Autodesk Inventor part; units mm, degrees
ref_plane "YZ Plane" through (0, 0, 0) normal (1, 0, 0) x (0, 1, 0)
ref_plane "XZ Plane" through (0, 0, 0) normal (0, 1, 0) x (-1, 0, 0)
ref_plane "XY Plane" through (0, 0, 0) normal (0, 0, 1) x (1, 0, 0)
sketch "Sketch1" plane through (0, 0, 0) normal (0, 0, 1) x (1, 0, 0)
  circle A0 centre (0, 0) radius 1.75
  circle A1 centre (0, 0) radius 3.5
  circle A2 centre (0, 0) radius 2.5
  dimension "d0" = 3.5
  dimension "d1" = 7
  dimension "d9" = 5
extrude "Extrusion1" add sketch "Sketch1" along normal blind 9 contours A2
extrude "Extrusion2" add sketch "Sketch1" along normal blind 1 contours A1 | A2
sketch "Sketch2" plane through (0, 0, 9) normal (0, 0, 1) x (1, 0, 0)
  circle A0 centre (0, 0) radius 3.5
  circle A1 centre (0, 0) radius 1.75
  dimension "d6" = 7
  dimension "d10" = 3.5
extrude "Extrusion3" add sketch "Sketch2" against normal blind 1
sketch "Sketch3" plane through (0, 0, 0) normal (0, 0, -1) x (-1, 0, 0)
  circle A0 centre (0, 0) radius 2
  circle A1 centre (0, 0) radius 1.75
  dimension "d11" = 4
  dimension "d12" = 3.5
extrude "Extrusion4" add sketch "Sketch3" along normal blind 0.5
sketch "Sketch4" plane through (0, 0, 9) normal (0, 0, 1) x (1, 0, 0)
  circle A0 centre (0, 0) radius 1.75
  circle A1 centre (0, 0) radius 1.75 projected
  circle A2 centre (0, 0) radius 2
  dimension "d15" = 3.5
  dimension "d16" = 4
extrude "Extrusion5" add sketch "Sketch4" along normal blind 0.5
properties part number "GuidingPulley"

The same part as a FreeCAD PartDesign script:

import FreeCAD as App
import Part
import Sketcher

V = App.Vector

doc = App.newDocument("Part")
body = doc.addObject("PartDesign::Body", "Body")

sketch1 = doc.addObject("Sketcher::SketchObject", "Sketch")
body.addObject(sketch1)
sketch1.AttachmentSupport = (doc.XY_Plane, [""])
sketch1.MapMode = "FlatFace"
sketch1.addGeometry(Part.Circle(V(0, 0, 0), V(0, 0, 1), 2.5), False)
sketch1.addGeometry(Part.Circle(V(0, 0, 0), V(0, 0, 1), 1.8), False)
sketch1.addConstraint(Sketcher.Constraint("Coincident", 0, 3, -1, 1))
sketch1.addConstraint(Sketcher.Constraint("Coincident", 1, 3, -1, 1))
sketch1.addConstraint(Sketcher.Constraint("Diameter", 0, 5.0))
sketch1.addConstraint(Sketcher.Constraint("Diameter", 1, 3.5))
pad1 = doc.addObject("PartDesign::Pad", "Pad")
body.addObject(pad1)
pad1.Profile = sketch1
pad1.Length = 9

sketch2 = doc.addObject("Sketcher::SketchObject", "Sketch001")
body.addObject(sketch2)
sketch2.AttachmentSupport = (doc.XY_Plane, [""])
sketch2.MapMode = "FlatFace"
sketch2.addGeometry(Part.Circle(V(0, 0, 0), V(0, 0, 1), 3.5), False)
sketch2.addGeometry(Part.Circle(V(0, 0, 0), V(0, 0, 1), 1.8), False)
sketch2.addConstraint(Sketcher.Constraint("Coincident", 0, 3, -1, 1))
sketch2.addConstraint(Sketcher.Constraint("Coincident", 1, 3, -1, 1))
sketch2.addConstraint(Sketcher.Constraint("Diameter", 0, 7.0))
sketch2.addConstraint(Sketcher.Constraint("Diameter", 1, 3.5))
pad2 = doc.addObject("PartDesign::Pad", "Pad001")
body.addObject(pad2)
pad2.Profile = sketch2
pad2.Length = 1

sketch3 = doc.addObject("Sketcher::SketchObject", "Sketch002")
body.addObject(sketch3)
sketch3.AttachmentSupport = (doc.XY_Plane, [""])
sketch3.MapMode = "FlatFace"
sketch3.AttachmentOffset = App.Placement(V(0, 0, 9), App.Rotation())
sketch3.addGeometry(Part.Circle(V(0, 0, 0), V(0, 0, 1), 3.5), False)
sketch3.addGeometry(Part.Circle(V(0, 0, 0), V(0, 0, 1), 1.8), False)
sketch3.addConstraint(Sketcher.Constraint("Coincident", 0, 3, -1, 1))
sketch3.addConstraint(Sketcher.Constraint("Coincident", 1, 3, -1, 1))
sketch3.addConstraint(Sketcher.Constraint("Diameter", 0, 7.0))
sketch3.addConstraint(Sketcher.Constraint("Diameter", 1, 3.5))
pad3 = doc.addObject("PartDesign::Pad", "Pad002")
body.addObject(pad3)
pad3.Profile = sketch3
pad3.Length = 1
pad3.Reversed = True

sketch4 = doc.addObject("Sketcher::SketchObject", "Sketch003")
body.addObject(sketch4)
sketch4.AttachmentSupport = (doc.XY_Plane, [""])
sketch4.MapMode = "FlatFace"
sketch4.addGeometry(Part.Circle(V(0, 0, 0), V(0, 0, 1), 2), False)
sketch4.addGeometry(Part.Circle(V(0, 0, 0), V(0, 0, 1), 1.8), False)
sketch4.addConstraint(Sketcher.Constraint("Coincident", 0, 3, -1, 1))
sketch4.addConstraint(Sketcher.Constraint("Coincident", 1, 3, -1, 1))
sketch4.addConstraint(Sketcher.Constraint("Diameter", 0, 4.0))
sketch4.addConstraint(Sketcher.Constraint("Diameter", 1, 3.5))
pad4 = doc.addObject("PartDesign::Pad", "Pad003")
body.addObject(pad4)
pad4.Profile = sketch4
pad4.Length = 0.5
pad4.Reversed = True

sketch5 = doc.addObject("Sketcher::SketchObject", "Sketch004")
body.addObject(sketch5)
sketch5.AttachmentSupport = (doc.XY_Plane, [""])
sketch5.MapMode = "FlatFace"
sketch5.AttachmentOffset = App.Placement(V(0, 0, 9), App.Rotation())
sketch5.addGeometry(Part.Circle(V(0, 0, 0), V(0, 0, 1), 2), False)
sketch5.addGeometry(Part.Circle(V(0, 0, 0), V(0, 0, 1), 1.8), False)
sketch5.addConstraint(Sketcher.Constraint("Coincident", 0, 3, -1, 1))
sketch5.addConstraint(Sketcher.Constraint("Coincident", 1, 3, -1, 1))
sketch5.addConstraint(Sketcher.Constraint("Diameter", 0, 4.0))
sketch5.addConstraint(Sketcher.Constraint("Diameter", 1, 3.5))
pad5 = doc.addObject("PartDesign::Pad", "Pad004")
body.addObject(pad5)
pad5.Profile = sketch5
pad5.Length = 0.5

doc.recompute()
